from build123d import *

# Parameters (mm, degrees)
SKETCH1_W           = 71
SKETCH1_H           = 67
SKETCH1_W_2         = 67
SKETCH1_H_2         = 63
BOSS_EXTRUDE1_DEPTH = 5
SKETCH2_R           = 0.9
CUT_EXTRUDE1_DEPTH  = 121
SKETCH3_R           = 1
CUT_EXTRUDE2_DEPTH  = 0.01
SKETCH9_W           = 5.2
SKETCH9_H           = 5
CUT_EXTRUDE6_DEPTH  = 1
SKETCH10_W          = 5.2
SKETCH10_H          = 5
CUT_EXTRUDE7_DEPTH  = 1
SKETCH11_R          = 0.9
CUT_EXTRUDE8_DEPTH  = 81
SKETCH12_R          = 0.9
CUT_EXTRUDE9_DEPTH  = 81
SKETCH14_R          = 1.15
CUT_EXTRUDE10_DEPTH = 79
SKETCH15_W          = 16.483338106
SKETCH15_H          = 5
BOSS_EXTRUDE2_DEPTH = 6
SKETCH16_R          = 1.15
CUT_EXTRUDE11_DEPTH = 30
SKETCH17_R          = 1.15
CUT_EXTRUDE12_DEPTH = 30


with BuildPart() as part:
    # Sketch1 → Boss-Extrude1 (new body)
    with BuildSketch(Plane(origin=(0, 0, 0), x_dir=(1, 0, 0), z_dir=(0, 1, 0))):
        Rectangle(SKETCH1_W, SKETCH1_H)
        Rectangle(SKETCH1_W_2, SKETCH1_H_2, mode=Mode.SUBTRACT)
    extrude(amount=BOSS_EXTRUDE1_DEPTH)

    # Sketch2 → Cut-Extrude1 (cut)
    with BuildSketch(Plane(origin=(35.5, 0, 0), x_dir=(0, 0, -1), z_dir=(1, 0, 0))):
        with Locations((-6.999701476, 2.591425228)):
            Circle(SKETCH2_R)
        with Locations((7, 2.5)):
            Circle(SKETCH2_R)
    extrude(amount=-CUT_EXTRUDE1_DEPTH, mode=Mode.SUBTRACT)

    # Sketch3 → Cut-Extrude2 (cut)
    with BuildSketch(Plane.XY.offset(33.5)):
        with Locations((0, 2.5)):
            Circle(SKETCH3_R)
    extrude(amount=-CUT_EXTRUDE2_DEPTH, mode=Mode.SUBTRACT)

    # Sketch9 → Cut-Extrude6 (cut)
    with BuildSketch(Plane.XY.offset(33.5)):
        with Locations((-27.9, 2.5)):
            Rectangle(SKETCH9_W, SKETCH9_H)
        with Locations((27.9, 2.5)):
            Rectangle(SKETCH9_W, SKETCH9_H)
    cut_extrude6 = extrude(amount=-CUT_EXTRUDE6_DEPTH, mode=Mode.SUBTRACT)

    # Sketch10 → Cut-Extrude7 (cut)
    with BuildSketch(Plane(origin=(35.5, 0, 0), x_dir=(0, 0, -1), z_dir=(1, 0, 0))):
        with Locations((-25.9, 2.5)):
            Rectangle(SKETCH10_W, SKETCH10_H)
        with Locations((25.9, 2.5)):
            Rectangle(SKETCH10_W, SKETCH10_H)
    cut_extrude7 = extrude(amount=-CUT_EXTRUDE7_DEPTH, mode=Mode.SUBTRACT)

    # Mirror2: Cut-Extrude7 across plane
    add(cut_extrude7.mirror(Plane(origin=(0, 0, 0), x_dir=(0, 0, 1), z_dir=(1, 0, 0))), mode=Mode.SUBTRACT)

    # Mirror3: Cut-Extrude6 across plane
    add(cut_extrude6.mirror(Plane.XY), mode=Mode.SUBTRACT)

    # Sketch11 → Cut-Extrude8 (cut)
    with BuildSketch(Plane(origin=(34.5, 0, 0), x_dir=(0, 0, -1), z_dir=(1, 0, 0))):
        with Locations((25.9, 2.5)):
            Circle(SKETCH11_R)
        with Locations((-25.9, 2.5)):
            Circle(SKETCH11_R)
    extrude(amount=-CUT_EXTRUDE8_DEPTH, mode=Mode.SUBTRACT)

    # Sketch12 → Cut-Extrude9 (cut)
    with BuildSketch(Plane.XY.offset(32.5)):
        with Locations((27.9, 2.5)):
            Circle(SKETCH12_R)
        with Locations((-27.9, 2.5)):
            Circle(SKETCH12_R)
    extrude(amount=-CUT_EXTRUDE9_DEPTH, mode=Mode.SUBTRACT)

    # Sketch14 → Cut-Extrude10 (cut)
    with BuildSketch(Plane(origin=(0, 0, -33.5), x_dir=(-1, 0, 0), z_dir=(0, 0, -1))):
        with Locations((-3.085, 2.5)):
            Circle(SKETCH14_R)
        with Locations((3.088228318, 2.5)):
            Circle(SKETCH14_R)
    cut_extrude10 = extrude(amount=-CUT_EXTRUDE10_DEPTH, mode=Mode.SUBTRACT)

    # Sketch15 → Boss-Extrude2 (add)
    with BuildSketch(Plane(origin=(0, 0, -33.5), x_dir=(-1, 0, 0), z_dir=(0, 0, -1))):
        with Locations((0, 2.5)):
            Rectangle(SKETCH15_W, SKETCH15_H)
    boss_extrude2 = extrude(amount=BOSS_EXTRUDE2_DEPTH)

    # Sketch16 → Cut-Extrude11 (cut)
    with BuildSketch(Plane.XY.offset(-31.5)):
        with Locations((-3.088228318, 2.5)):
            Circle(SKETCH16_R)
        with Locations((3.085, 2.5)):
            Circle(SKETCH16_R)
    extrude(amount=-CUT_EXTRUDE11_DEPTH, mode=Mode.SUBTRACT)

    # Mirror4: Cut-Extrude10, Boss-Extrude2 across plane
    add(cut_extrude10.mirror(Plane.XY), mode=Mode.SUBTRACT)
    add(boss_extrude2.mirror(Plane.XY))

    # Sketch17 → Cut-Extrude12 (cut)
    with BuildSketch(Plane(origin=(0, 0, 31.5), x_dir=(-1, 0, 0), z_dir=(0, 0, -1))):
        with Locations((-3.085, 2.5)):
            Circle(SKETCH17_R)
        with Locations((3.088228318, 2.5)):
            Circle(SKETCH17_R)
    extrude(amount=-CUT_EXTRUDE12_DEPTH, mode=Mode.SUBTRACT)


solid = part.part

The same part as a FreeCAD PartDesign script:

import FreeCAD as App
import Part
import Sketcher
from FreeCAD import Vector
Q = App.Units.Quantity


def add_polygon(sketch, points):
    """Adds a closed chain of lines whose ends are joined by coincident constraints."""
    first, n = sketch.GeometryCount, len(points)
    for a, b in zip(points, points[1:] + points[:1]):
        sketch.addGeometry(Part.LineSegment(App.Vector(*a, 0), App.Vector(*b, 0)), False)
    for i in range(n):
        sketch.addConstraint(Sketcher.Constraint("Coincident", first + i, 2, first + (i + 1) % n, 1))

doc = App.newDocument("Part")
body = doc.addObject("PartDesign::Body", "Body")

# Sketch on XZ plane
sketch1 = body.newObject("Sketcher::SketchObject", "Sketch")
sketch1.AttachmentSupport = (doc.getObject("XZ_Plane"), [""])
sketch1.MapMode = "FlatFace"
add_polygon(sketch1, [(-36, -34), (-36, 34), (36, 34), (36, -34)])  # lines 0-3
add_polygon(sketch1, [(34, 32), (-34, 32), (-34, -32), (34, -32)])  # lines 4-7
sketch1.addConstraint([
    Sketcher.Constraint("Vertical", 0),
    Sketcher.Constraint("Horizontal", 1),
    Sketcher.Constraint("Vertical", 2),
    Sketcher.Constraint("Horizontal", 3),
    Sketcher.Constraint("Horizontal", 4),
    Sketcher.Constraint("Vertical", 5),
    Sketcher.Constraint("Horizontal", 6),
    Sketcher.Constraint("Vertical", 7),
    Sketcher.Constraint("Symmetric", 0, 2, 2, 2, -1, 1),
    Sketcher.Constraint("Symmetric", 4, 2, 6, 2, -1, 1),
    Sketcher.Constraint("Equal", 6, 0),
    Sketcher.Constraint("DistanceX", 1, 1, 1, 2, Q("71 mm")),
    Sketcher.Constraint("DistanceX", 4, 2, 4, 1, Q("67 mm")),
    Sketcher.Constraint("DistanceY", 5, 2, 5, 1, Q("63 mm")),
])
pad1 = body.newObject("PartDesign::Pad", "Pad")
pad1.Profile = sketch1
pad1.Length = 5
pad1.Reversed = True

# Sketch on YZ plane
sketch2 = body.newObject("Sketcher::SketchObject", "Sketch001")
sketch2.AttachmentSupport = (doc.getObject("YZ_Plane"), [""])
sketch2.MapMode = "FlatFace"
sketch2.AttachmentOffset = App.Placement(Vector(0, 0, 35.5), App.Rotation())
sketch2.addGeometry([
    Part.Circle(Vector(2.6, 7, 0), Vector(0, 0, 1), 0.9),
    Part.Circle(Vector(2.5, -7, 0), Vector(0, 0, 1), 0.9),
], False)
sketch2.addConstraint([
    Sketcher.Constraint("Equal", 0, 1),
    Sketcher.Constraint("Diameter", 0, Q("1.8 mm")),
    Sketcher.Constraint("DistanceY", 1, 3, -1, 1, Q("7 mm")),
    Sketcher.Constraint("DistanceX", -1, 1, 1, 3, Q("2.5 mm")),
    Sketcher.Constraint("DistanceY", -1, 1, 0, 3, Q("6.999701 mm")),
    Sketcher.Constraint("DistanceX", -1, 1, 0, 3, Q("2.591425 mm")),
])
pocket1 = body.newObject("PartDesign::Pocket", "Pocket")
pocket1.Profile = sketch2
pocket1.Length = 121

# Sketch on XY plane
sketch3 = body.newObject("Sketcher::SketchObject", "Sketch002")
sketch3.AttachmentSupport = (doc.getObject("XY_Plane"), [""])
sketch3.MapMode = "FlatFace"
sketch3.AttachmentOffset = App.Placement(Vector(0, 0, 33.5), App.Rotation())
sketch3.addGeometry(Part.Circle(Vector(0, 2.5, 0), Vector(0, 0, 1), 1), False)
sketch3.addConstraint([
    Sketcher.Constraint("PointOnObject", 0, 3, -2),
    Sketcher.Constraint("Diameter", 0, Q("2 mm")),
    Sketcher.Constraint("DistanceY", -1, 1, 0, 3, Q("2.5 mm")),
])
pocket2 = body.newObject("PartDesign::Pocket", "Pocket001")
pocket2.Profile = sketch3
pocket2.Length = 0.01

# Sketch on XY plane
sketch4 = body.newObject("Sketcher::SketchObject", "Sketch003")
sketch4.AttachmentSupport = (doc.getObject("XY_Plane"), [""])
sketch4.MapMode = "FlatFace"
sketch4.AttachmentOffset = App.Placement(Vector(0, 0, 33.5), App.Rotation())
add_polygon(sketch4, [(-30, 5), (-30, 0), (-25, 0), (-25, 5)])  # lines 0-3
add_polygon(sketch4, [(25, 5), (25, 0), (30, 0), (30, 5)])  # lines 4-7
sketch4.addConstraint([
    Sketcher.Constraint("Vertical", 0),
    Sketcher.Constraint("Horizontal", 1),
    Sketcher.Constraint("Vertical", 2),
    Sketcher.Constraint("Horizontal", 3),
    Sketcher.Constraint("Vertical", 4),
    Sketcher.Constraint("Horizontal", 5),
    Sketcher.Constraint("Vertical", 6),
    Sketcher.Constraint("Horizontal", 7),
    Sketcher.Constraint("Symmetric", 1, 2, 4, 2, -1, 1),
    Sketcher.Constraint("Symmetric", 0, 2, 5, 2, -2),
    Sketcher.Constraint("Horizontal", 3, 2, 6, 2),
    Sketcher.Constraint("DistanceY", 0, 2, 0, 1, Q("5 mm")),
    Sketcher.Constraint("DistanceX", 1, 1, 1, 2, Q("5.2 mm")),
    Sketcher.Constraint("DistanceX", 0, 2, 5, 2, Q("61 mm")),
])
pocket3 = body.newObject("PartDesign::Pocket", "Pocket002")
pocket3.Profile = sketch4
pocket3.Length = 1

# Sketch on YZ plane
sketch5 = body.newObject("Sketcher::SketchObject", "Sketch004")
sketch5.AttachmentSupport = (doc.getObject("YZ_Plane"), [""])
sketch5.MapMode = "FlatFace"
sketch5.AttachmentOffset = App.Placement(Vector(0, 0, 35.5), App.Rotation())
add_polygon(sketch5, [(5, 28), (0, 28), (0, 23), (5, 23)])  # lines 0-3
add_polygon(sketch5, [(5, -23), (0, -23), (0, -28), (5, -28)])  # lines 4-7
sketch5.addConstraint([
    Sketcher.Constraint("Horizontal", 0),
    Sketcher.Constraint("Vertical", 1),
    Sketcher.Constraint("Horizontal", 2),
    Sketcher.Constraint("Vertical", 3),
    Sketcher.Constraint("Horizontal", 4),
    Sketcher.Constraint("Vertical", 5),
    Sketcher.Constraint("Horizontal", 6),
    Sketcher.Constraint("Vertical", 7),
    Sketcher.Constraint("Symmetric", 1, 2, 4, 2, -1, 1),
    Sketcher.Constraint("Symmetric", 0, 2, 5, 2, -1),
    Sketcher.Constraint("Vertical", 3, 2, 6, 2),
    Sketcher.Constraint("DistanceX", 0, 2, 0, 1, Q("5 mm")),
    Sketcher.Constraint("DistanceY", 1, 2, 1, 1, Q("5.2 mm")),
    Sketcher.Constraint("DistanceY", 5, 2, 0, 2, Q("57 mm")),
])
pocket4 = body.newObject("PartDesign::Pocket", "Pocket003")
pocket4.Profile = sketch5
pocket4.Length = 1
doc.recompute()

mirrored = body.newObject("PartDesign::Mirrored", "Mirrored")
mirrored.Originals = [pocket4]
mirrored.MirrorPlane = (doc.getObject("YZ_Plane"), [""])
body.Tip = mirrored
doc.recompute()

mirrored2 = body.newObject("PartDesign::Mirrored", "Mirrored001")
mirrored2.Originals = [pocket3]
mirrored2.MirrorPlane = (doc.getObject("XY_Plane"), [""])
body.Tip = mirrored2

# Sketch on YZ plane
sketch6 = body.newObject("Sketcher::SketchObject", "Sketch005")
sketch6.AttachmentSupport = (doc.getObject("YZ_Plane"), [""])
sketch6.MapMode = "FlatFace"
sketch6.AttachmentOffset = App.Placement(Vector(0, 0, 34.5), App.Rotation())
sketch6.addGeometry([
    Part.Circle(Vector(2.5, -25.9, 0), Vector(0, 0, 1), 0.9),
    Part.Circle(Vector(2.5, 25.9, 0), Vector(0, 0, 1), 0.9),
], False)
sketch6.addConstraint([
    Sketcher.Constraint("Equal", 0, 1),
    Sketcher.Constraint("Symmetric", 0, 3, 1, 3, -1),
    Sketcher.Constraint("Diameter", 0, Q("1.8 mm")),
    Sketcher.Constraint("DistanceX", -1, 1, 0, 3, Q("2.5 mm")),
    Sketcher.Constraint("DistanceY", 0, 3, -1, 1, Q("25.9 mm")),
])
pocket5 = body.newObject("PartDesign::Pocket", "Pocket004")
pocket5.Profile = sketch6
pocket5.Length = 81

# Sketch on XY plane
sketch7 = body.newObject("Sketcher::SketchObject", "Sketch006")
sketch7.AttachmentSupport = (doc.getObject("XY_Plane"), [""])
sketch7.MapMode = "FlatFace"
sketch7.AttachmentOffset = App.Placement(Vector(0, 0, 32.5), App.Rotation())
sketch7.addGeometry([
    Part.Circle(Vector(27.9, 2.5, 0), Vector(0, 0, 1), 0.9),
    Part.Circle(Vector(-27.9, 2.5, 0), Vector(0, 0, 1), 0.9),
], False)
sketch7.addConstraint([
    Sketcher.Constraint("Equal", 0, 1),
    Sketcher.Constraint("Symmetric", 0, 3, 1, 3, -2),
    Sketcher.Constraint("Diameter", 0, Q("1.8 mm")),
    Sketcher.Constraint("DistanceX", -1, 1, 0, 3, Q("27.9 mm")),
    Sketcher.Constraint("DistanceY", -1, 1, 0, 3, Q("2.5 mm")),
])
pocket6 = body.newObject("PartDesign::Pocket", "Pocket005")
pocket6.Profile = sketch7
pocket6.Length = 81

# Sketch on XY plane
sketch8 = body.newObject("Sketcher::SketchObject", "Sketch007")
sketch8.AttachmentSupport = (doc.getObject("XY_Plane"), [""])
sketch8.MapMode = "FlatFace"
sketch8.AttachmentOffset = App.Placement(Vector(0, 0, -33.5), App.Rotation())
sketch8.addGeometry([
    Part.Circle(Vector(3.1, 2.5, 0), Vector(0, 0, 1), 1.1),
    Part.Circle(Vector(-3.1, 2.5, 0), Vector(0, 0, 1), 1.1),
], False)
sketch8.addConstraint([
    Sketcher.Constraint("Equal", 0, 1),
    Sketcher.Constraint("Horizontal", 0, 3, 1, 3),
    Sketcher.Constraint("Diameter", 0, Q("2.3 mm")),
    Sketcher.Constraint("DistanceY", -1, 1, 0, 3, Q("2.5 mm")),
    Sketcher.Constraint("DistanceX", -1, 1, 0, 3, Q("3.085 mm")),
    Sketcher.Constraint("DistanceX", 1, 3, -1, 1, Q("3.088228 mm")),
])
pocket7 = body.newObject("PartDesign::Pocket", "Pocket006")
pocket7.Profile = sketch8
pocket7.Length = 79
pocket7.Reversed = True

# Sketch on XY plane
sketch9 = body.newObject("Sketcher::SketchObject", "Sketch008")
sketch9.AttachmentSupport = (doc.getObject("XY_Plane"), [""])
sketch9.MapMode = "FlatFace"
sketch9.AttachmentOffset = App.Placement(Vector(0, 0, -33.5), App.Rotation())
add_polygon(sketch9, [(8, 5), (8, 0), (-8, 0), (-8, 5)])  # lines 0-3
sketch9.addConstraint([
    Sketcher.Constraint("Vertical", 0),
    Sketcher.Constraint("Horizontal", 1),
    Sketcher.Constraint("Vertical", 2),
    Sketcher.Constraint("Horizontal", 3),
    Sketcher.Constraint("Symmetric", 0, 2, 1, 2, -1, 1),
    Sketcher.Constraint("DistanceY", 0, 2, 0, 1, Q("5 mm")),
    Sketcher.Constraint("DistanceX", 1, 2, 1, 1, Q("16.483338 mm")),
])
pad2 = body.newObject("PartDesign::Pad", "Pad001")
pad2.Profile = sketch9
pad2.Length = 6
pad2.Reversed = True

# Sketch on XY plane
sketch10 = body.newObject("Sketcher::SketchObject", "Sketch009")
sketch10.AttachmentSupport = (doc.getObject("XY_Plane"), [""])
sketch10.MapMode = "FlatFace"
sketch10.AttachmentOffset = App.Placement(Vector(0, 0, -31.5), App.Rotation())
sketch10.addGeometry([
    Part.Circle(Vector(-3.1, 2.5, 0), Vector(0, 0, 1), 1.1),
    Part.Circle(Vector(3.1, 2.5, 0), Vector(0, 0, 1), 1.1),
], False)
sketch10.addConstraint([
    Sketcher.Constraint("Equal", 0, 1),
    Sketcher.Constraint("Horizontal", 0, 3, 1, 3),
    Sketcher.Constraint("Diameter", 0, Q("2.3 mm")),
    Sketcher.Constraint("DistanceY", -1, 1, 0, 3, Q("2.5 mm")),
    Sketcher.Constraint("DistanceX", -1, 1, 1, 3, Q("3.085 mm")),
    Sketcher.Constraint("DistanceX", 0, 3, -1, 1, Q("3.088228 mm")),
])
pocket8 = body.newObject("PartDesign::Pocket", "Pocket007")
pocket8.Profile = sketch10
pocket8.Length = 30
doc.recompute()

mirrored3 = body.newObject("PartDesign::Mirrored", "Mirrored002")
mirrored3.Originals = [pocket7, pad2]
mirrored3.MirrorPlane = (doc.getObject("XY_Plane"), [""])
body.Tip = mirrored3

# Sketch on XY plane
sketch11 = body.newObject("Sketcher::SketchObject", "Sketch010")
sketch11.AttachmentSupport = (doc.getObject("XY_Plane"), [""])
sketch11.MapMode = "FlatFace"
sketch11.AttachmentOffset = App.Placement(Vector(0, 0, 31.5), App.Rotation())
sketch11.addGeometry([
    Part.Circle(Vector(3.1, 2.5, 0), Vector(0, 0, 1), 1.1),
    Part.Circle(Vector(-3.1, 2.5, 0), Vector(0, 0, 1), 1.1),
], False)
sketch11.addConstraint([
    Sketcher.Constraint("Equal", 0, 1),
    Sketcher.Constraint("Horizontal", 0, 3, 1, 3),
    Sketcher.Constraint("Diameter", 0, Q("2.3 mm")),
    Sketcher.Constraint("DistanceY", -1, 1, 0, 3, Q("2.5 mm")),
    Sketcher.Constraint("DistanceX", -1, 1, 0, 3, Q("3.085 mm")),
    Sketcher.Constraint("DistanceX", 1, 3, -1, 1, Q("3.088228 mm")),
])
pocket9 = body.newObject("PartDesign::Pocket", "Pocket008")
pocket9.Profile = sketch11
pocket9.Length = 30
pocket9.Reversed = True

doc.recompute()
